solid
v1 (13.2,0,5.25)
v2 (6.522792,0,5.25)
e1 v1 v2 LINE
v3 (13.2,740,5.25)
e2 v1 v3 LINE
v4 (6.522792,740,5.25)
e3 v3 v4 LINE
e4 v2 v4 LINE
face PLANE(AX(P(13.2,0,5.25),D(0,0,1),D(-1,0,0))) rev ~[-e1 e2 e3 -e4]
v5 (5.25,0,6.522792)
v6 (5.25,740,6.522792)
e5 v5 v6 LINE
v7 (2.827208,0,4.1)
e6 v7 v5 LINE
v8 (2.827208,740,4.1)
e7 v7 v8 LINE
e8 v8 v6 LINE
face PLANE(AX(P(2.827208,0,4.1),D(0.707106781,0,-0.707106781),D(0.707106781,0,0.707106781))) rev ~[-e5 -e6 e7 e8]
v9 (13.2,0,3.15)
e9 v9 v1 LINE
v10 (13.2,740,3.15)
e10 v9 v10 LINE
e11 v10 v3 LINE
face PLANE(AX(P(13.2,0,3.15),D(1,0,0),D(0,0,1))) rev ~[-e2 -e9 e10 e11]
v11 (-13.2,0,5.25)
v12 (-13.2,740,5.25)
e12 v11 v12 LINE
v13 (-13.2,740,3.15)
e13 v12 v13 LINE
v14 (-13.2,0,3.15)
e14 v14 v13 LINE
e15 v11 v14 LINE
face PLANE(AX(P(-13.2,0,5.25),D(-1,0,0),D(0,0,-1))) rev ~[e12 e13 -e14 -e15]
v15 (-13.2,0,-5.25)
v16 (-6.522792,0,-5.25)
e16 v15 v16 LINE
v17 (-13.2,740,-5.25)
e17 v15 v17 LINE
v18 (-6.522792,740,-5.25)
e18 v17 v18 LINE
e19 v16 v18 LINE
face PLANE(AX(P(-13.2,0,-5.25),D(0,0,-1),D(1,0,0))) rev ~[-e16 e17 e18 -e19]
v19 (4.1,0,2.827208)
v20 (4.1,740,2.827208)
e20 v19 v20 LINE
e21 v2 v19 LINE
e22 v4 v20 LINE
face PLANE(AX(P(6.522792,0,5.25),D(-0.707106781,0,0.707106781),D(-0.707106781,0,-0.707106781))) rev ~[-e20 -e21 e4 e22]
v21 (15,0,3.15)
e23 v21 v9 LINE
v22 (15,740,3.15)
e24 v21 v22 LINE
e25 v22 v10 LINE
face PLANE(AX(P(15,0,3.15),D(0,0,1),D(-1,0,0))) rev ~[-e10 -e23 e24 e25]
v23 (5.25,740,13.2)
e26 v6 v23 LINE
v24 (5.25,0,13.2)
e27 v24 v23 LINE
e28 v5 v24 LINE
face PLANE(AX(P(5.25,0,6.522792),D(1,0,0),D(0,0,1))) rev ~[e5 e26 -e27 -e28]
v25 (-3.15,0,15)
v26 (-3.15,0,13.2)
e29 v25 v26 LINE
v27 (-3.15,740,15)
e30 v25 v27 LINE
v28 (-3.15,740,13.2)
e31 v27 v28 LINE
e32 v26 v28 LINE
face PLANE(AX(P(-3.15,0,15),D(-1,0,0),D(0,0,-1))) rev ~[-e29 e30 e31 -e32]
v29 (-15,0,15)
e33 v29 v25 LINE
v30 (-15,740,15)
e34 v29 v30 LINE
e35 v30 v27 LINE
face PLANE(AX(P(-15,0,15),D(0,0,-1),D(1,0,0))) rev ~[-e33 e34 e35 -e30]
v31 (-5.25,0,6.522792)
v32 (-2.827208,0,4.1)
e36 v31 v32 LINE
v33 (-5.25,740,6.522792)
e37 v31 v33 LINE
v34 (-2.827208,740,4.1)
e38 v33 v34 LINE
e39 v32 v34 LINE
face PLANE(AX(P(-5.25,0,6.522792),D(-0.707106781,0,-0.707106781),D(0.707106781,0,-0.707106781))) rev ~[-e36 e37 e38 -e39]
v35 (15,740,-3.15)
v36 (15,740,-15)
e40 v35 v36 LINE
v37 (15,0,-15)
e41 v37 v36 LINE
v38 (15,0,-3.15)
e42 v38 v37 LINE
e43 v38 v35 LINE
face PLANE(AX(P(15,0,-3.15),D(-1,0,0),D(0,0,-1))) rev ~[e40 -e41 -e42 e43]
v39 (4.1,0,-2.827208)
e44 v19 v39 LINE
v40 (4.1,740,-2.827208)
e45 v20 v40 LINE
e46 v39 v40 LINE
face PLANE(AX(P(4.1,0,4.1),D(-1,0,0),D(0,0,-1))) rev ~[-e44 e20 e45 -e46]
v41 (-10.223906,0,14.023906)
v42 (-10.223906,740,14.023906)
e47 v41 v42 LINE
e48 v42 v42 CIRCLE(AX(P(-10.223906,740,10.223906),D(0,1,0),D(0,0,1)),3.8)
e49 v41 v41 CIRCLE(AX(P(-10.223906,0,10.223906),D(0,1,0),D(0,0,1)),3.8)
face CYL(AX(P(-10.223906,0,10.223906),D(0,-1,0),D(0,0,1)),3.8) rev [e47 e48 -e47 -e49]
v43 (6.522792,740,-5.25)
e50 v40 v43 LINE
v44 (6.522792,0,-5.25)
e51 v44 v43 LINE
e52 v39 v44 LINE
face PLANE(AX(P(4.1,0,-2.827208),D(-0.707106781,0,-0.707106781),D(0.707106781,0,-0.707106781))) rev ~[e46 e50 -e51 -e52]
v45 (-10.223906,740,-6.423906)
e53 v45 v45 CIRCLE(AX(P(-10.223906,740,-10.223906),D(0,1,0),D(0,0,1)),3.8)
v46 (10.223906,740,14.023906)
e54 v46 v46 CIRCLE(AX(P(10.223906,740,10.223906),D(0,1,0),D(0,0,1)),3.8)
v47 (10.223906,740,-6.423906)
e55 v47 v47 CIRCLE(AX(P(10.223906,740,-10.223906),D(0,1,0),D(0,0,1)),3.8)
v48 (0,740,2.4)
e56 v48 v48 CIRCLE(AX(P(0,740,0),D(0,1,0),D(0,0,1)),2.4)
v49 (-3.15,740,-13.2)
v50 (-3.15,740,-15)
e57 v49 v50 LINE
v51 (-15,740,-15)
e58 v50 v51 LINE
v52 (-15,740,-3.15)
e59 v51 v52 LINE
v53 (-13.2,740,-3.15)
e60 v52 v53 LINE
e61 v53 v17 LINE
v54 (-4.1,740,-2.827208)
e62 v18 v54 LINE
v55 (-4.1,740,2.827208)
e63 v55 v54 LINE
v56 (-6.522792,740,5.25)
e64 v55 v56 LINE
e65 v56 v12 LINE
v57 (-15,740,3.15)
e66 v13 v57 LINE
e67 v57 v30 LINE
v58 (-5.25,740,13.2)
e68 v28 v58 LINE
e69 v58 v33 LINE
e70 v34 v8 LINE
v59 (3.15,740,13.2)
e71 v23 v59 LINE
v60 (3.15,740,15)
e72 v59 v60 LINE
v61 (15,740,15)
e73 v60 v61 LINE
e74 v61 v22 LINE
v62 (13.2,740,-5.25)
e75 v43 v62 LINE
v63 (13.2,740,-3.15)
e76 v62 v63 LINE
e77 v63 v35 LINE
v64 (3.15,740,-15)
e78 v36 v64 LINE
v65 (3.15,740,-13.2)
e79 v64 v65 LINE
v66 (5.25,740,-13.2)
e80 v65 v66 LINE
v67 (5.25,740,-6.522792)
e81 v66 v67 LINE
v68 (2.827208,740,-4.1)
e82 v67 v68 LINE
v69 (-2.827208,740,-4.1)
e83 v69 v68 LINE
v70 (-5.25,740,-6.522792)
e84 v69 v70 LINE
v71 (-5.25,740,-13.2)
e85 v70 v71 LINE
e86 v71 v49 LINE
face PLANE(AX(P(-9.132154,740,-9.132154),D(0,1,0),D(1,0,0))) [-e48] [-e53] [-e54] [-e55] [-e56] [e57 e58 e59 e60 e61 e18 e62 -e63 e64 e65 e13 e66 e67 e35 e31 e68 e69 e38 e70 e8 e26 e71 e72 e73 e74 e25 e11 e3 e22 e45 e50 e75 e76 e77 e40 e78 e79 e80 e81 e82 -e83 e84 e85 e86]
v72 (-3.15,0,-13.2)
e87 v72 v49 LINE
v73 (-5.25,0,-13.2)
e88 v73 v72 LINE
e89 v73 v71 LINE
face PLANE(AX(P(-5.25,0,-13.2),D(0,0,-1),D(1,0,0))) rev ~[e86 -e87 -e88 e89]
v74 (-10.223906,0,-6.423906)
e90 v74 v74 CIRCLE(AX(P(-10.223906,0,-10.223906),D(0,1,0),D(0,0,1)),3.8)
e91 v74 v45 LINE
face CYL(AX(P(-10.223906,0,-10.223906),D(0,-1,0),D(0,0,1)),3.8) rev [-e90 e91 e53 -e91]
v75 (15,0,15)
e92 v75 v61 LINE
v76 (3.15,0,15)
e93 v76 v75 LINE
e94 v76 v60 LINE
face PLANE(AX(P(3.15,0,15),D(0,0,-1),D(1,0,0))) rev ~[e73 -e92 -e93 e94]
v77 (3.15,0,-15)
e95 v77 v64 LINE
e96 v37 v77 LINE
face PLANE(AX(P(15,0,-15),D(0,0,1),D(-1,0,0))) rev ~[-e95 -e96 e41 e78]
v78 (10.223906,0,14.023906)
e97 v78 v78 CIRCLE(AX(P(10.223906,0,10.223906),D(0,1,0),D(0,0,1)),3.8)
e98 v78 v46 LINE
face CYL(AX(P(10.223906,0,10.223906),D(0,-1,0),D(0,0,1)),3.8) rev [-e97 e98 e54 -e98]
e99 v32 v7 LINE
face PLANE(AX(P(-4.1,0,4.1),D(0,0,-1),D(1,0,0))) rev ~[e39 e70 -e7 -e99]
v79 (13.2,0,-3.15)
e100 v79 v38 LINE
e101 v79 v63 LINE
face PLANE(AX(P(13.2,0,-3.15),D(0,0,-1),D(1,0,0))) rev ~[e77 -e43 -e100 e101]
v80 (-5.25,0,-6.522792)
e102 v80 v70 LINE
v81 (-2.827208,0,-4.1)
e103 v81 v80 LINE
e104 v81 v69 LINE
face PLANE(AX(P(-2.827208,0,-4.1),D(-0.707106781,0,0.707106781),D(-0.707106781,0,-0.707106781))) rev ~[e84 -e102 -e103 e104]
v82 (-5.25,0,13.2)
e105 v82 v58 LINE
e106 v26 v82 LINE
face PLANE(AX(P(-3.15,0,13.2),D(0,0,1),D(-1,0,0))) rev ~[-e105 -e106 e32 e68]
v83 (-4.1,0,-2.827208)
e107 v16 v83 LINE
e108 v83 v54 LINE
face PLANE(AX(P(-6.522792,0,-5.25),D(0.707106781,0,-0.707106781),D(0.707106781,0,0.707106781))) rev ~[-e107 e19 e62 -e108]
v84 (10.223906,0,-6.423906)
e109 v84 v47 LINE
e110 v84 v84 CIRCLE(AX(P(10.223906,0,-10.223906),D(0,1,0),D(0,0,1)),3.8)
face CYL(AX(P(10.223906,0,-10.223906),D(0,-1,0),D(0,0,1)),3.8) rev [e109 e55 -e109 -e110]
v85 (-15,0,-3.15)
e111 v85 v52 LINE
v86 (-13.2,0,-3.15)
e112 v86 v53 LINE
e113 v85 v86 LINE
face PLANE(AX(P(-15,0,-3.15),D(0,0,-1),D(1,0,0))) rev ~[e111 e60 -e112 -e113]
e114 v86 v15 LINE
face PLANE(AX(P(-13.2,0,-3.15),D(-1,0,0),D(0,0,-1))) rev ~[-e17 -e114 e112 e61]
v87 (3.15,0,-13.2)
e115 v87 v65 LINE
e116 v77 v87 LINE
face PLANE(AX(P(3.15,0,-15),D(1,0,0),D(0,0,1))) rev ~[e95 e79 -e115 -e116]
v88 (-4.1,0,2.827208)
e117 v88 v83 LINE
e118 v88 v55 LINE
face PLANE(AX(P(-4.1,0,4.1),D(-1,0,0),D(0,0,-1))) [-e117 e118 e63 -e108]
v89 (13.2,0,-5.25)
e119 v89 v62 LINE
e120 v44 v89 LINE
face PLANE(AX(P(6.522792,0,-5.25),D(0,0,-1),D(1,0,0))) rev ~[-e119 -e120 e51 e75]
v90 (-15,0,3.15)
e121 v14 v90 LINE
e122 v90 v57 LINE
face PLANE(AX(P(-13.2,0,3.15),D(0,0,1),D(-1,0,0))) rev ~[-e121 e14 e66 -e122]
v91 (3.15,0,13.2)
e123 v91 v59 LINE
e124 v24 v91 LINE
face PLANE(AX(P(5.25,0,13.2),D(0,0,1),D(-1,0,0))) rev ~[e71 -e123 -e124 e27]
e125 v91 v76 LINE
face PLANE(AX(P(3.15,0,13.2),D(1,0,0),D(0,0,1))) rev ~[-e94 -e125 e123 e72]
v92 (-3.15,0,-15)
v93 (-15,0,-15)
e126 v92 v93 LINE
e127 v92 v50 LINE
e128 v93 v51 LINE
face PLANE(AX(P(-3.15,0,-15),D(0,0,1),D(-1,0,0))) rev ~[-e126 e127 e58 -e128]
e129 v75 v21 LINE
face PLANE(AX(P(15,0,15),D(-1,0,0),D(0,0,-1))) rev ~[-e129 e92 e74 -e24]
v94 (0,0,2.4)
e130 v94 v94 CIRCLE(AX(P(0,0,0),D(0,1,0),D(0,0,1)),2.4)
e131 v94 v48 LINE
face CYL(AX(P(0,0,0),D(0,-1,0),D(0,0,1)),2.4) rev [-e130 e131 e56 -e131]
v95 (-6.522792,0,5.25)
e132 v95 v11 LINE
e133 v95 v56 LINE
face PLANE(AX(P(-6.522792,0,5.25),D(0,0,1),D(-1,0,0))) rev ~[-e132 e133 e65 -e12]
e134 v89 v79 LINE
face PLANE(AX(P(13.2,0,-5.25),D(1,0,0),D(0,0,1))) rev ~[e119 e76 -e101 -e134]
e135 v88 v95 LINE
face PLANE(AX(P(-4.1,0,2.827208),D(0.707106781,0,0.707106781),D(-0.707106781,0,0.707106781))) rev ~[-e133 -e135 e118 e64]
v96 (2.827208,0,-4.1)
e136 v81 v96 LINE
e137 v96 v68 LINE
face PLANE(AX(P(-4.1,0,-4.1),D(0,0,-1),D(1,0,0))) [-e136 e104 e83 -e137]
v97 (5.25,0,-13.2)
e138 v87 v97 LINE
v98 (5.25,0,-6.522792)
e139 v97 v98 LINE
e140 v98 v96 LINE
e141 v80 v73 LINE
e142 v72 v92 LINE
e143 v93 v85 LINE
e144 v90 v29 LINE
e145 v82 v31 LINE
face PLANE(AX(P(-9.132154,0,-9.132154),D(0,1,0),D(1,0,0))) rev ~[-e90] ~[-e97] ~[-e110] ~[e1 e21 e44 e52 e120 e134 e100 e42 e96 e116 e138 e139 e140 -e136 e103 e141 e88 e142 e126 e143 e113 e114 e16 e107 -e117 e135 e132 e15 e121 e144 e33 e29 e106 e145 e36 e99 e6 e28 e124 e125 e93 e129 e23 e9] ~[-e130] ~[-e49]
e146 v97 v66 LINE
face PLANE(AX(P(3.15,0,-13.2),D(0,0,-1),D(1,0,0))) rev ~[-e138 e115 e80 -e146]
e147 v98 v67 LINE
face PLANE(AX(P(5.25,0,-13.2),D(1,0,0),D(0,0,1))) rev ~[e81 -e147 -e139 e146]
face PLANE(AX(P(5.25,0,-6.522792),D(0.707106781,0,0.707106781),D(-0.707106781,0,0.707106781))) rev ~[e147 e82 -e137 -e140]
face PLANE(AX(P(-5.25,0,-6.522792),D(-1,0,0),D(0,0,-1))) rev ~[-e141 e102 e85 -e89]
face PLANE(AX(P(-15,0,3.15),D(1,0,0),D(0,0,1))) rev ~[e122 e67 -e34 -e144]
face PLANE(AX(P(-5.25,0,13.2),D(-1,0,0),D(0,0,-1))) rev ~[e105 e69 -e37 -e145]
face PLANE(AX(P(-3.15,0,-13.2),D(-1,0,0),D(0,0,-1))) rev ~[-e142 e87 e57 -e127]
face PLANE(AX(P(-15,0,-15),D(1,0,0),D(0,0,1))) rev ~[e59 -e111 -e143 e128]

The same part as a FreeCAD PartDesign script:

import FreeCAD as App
import Part
import Sketcher

V = App.Vector
Q = App.Units.Quantity


def add_polygon(sketch, points):
    """Adds a closed chain of lines whose ends are joined by coincident constraints."""
    first, n = sketch.GeometryCount, len(points)
    for a, b in zip(points, points[1:] + points[:1]):
        sketch.addGeometry(Part.LineSegment(App.Vector(*a, 0), App.Vector(*b, 0)), False)
    for i in range(n):
        sketch.addConstraint(Sketcher.Constraint("Coincident", first + i, 2, first + (i + 1) % n, 1))

doc = App.newDocument("Part")
body = doc.addObject("PartDesign::Body", "Body")

sketch1 = doc.addObject("Sketcher::SketchObject", "Sketch")
body.addObject(sketch1)
sketch1.AttachmentSupport = (doc.XZ_Plane, [""])
sketch1.MapMode = "FlatFace"
add_polygon(sketch1, [(-13.2, 3.15), (-15, 3.15), (-15, 15), (-3.15, 15), (-3.15, 13.2), (-5.25, 13.2), (-5.25, 6.522792), (-2.827208, 4.1), (2.827208, 4.1), (5.25, 6.522792), (5.25, 13.2), (3.15, 13.2), (3.15, 15), (15, 15), (15, 3.15), (13.2, 3.15), (13.2, 5.25), (6.522792, 5.25), (4.1, 2.827208), (4.1, -2.827208), (6.522792, -5.25), (13.2, -5.25), (13.2, -3.15), (15, -3.15), (15, -15), (3.15, -15), (3.15, -13.2), (5.25, -13.2), (5.25, -6.522792), (2.827208, -4.1), (-2.827208, -4.1), (-5.25, -6.522792), (-5.25, -13.2), (-3.15, -13.2), (-3.15, -15), (-15, -15), (-15, -3.15), (-13.2, -3.15), (-13.2, -5.25), (-6.522792, -5.25), (-4.1, -2.827208), (-4.1, 2.827208), (-6.522792, 5.25), (-13.2, 5.25)])
sketch1.addGeometry(Part.Circle(V(-10.223906, 10.223906, 0), V(0, 0, 1), 3.8), False)
sketch1.addGeometry(Part.Circle(V(0, 0, 0), V(0, 0, 1), 2.4), False)
sketch1.addGeometry(Part.Circle(V(-10.223906, -10.223906, 0), V(0, 0, 1), 3.8), False)
sketch1.addGeometry(Part.Circle(V(10.223906, -10.223906, 0), V(0, 0, 1), 3.8), False)
sketch1.addGeometry(Part.Circle(V(10.223906, 10.223906, 0), V(0, 0, 1), 3.8), False)
sketch1.addConstraint(Sketcher.Constraint("Horizontal", 0))
sketch1.addConstraint(Sketcher.Constraint("Vertical", 1))
sketch1.addConstraint(Sketcher.Constraint("Horizontal", 2))
sketch1.addConstraint(Sketcher.Constraint("Vertical", 3))
sketch1.addConstraint(Sketcher.Constraint("Horizontal", 4))
sketch1.addConstraint(Sketcher.Constraint("Vertical", 5))
sketch1.addConstraint(Sketcher.Constraint("Horizontal", 7))
sketch1.addConstraint(Sketcher.Constraint("Vertical", 9))
sketch1.addConstraint(Sketcher.Constraint("Horizontal", 10))
sketch1.addConstraint(Sketcher.Constraint("Vertical", 11))
sketch1.addConstraint(Sketcher.Constraint("Horizontal", 12))
sketch1.addConstraint(Sketcher.Constraint("Vertical", 13))
sketch1.addConstraint(Sketcher.Constraint("Horizontal", 14))
sketch1.addConstraint(Sketcher.Constraint("Vertical", 15))
sketch1.addConstraint(Sketcher.Constraint("Horizontal", 16))
sketch1.addConstraint(Sketcher.Constraint("Vertical", 18))
sketch1.addConstraint(Sketcher.Constraint("Horizontal", 20))
sketch1.addConstraint(Sketcher.Constraint("Vertical", 21))
sketch1.addConstraint(Sketcher.Constraint("Horizontal", 22))
sketch1.addConstraint(Sketcher.Constraint("Vertical", 23))
sketch1.addConstraint(Sketcher.Constraint("Horizontal", 24))
sketch1.addConstraint(Sketcher.Constraint("Vertical", 25))
sketch1.addConstraint(Sketcher.Constraint("Horizontal", 26))
sketch1.addConstraint(Sketcher.Constraint("Vertical", 27))
sketch1.addConstraint(Sketcher.Constraint("Horizontal", 29))
sketch1.addConstraint(Sketcher.Constraint("Vertical", 31))
sketch1.addConstraint(Sketcher.Constraint("Horizontal", 32))
sketch1.addConstraint(Sketcher.Constraint("Vertical", 33))
sketch1.addConstraint(Sketcher.Constraint("Horizontal", 34))
sketch1.addConstraint(Sketcher.Constraint("Vertical", 35))
sketch1.addConstraint(Sketcher.Constraint("Horizontal", 36))
sketch1.addConstraint(Sketcher.Constraint("Vertical", 37))
sketch1.addConstraint(Sketcher.Constraint("Horizontal", 38))
sketch1.addConstraint(Sketcher.Constraint("Vertical", 40))
sketch1.addConstraint(Sketcher.Constraint("Horizontal", 42))
sketch1.addConstraint(Sketcher.Constraint("Vertical", 43))
sketch1.addConstraint(Sketcher.Constraint("Coincident", 45, 3, -1, 1))
sketch1.addConstraint(Sketcher.Constraint("Equal", 44, 46))
sketch1.addConstraint(Sketcher.Constraint("Equal", 46, 47))
sketch1.addConstraint(Sketcher.Constraint("Equal", 47, 48))
sketch1.addConstraint(Sketcher.Constraint("Symmetric", 44, 3, 47, 3, -1, 1))
sketch1.addConstraint(Sketcher.Constraint("Symmetric", 46, 3, 48, 3, -1, 1))
sketch1.addConstraint(Sketcher.Constraint("Symmetric", 0, 2, 22, 2, -1, 1))
sketch1.addConstraint(Sketcher.Constraint("Symmetric", 2, 2, 24, 2, -1, 1))
sketch1.addConstraint(Sketcher.Constraint("Symmetric", 4, 2, 26, 2, -1, 1))
sketch1.addConstraint(Sketcher.Constraint("Symmetric", 6, 2, 28, 2, -1, 1))
sketch1.addConstraint(Sketcher.Constraint("Symmetric", 8, 2, 30, 2, -1, 1))
sketch1.addConstraint(Sketcher.Constraint("Symmetric", 10, 2, 32, 2, -1, 1))
sketch1.addConstraint(Sketcher.Constraint("Symmetric", 12, 2, 34, 2, -1, 1))
sketch1.addConstraint(Sketcher.Constraint("Symmetric", 14, 2, 36, 2, -1, 1))
sketch1.addConstraint(Sketcher.Constraint("Symmetric", 16, 2, 38, 2, -1, 1))
sketch1.addConstraint(Sketcher.Constraint("Symmetric", 17, 2, 39, 2, -1, 1))
sketch1.addConstraint(Sketcher.Constraint("Symmetric", 19, 2, 41, 2, -1, 1))
sketch1.addConstraint(Sketcher.Constraint("Symmetric", 46, 3, 47, 3, -2))
sketch1.addConstraint(Sketcher.Constraint("Symmetric", 5, 2, 8, 2, -2))
sketch1.addConstraint(Sketcher.Constraint("Symmetric", 3, 2, 10, 2, -2))
sketch1.addConstraint(Sketcher.Constraint("Symmetric", 1, 2, 12, 2, -2))
sketch1.addConstraint(Sketcher.Constraint("Symmetric", 21, 2, 36, 2, -2))
sketch1.addConstraint(Sketcher.Constraint("Symmetric", 19, 2, 38, 2, -2))
sketch1.addConstraint(Sketcher.Constraint("Perpendicular", 6, 8))
sketch1.addConstraint(Sketcher.Constraint("Parallel", 8, 17))
sketch1.addConstraint(Sketcher.Constraint("Perpendicular", 17, 19))
sketch1.addConstraint(Sketcher.Constraint("Parallel", 19, 28))
sketch1.addConstraint(Sketcher.Constraint("Perpendicular", 28, 30))
sketch1.addConstraint(Sketcher.Constraint("Perpendicular", 39, 41))
sketch1.addConstraint(Sketcher.Constraint("Horizontal", 18, 2, 39, 2))
sketch1.addConstraint(Sketcher.Constraint("Vertical", 37, 2, 42, 2))
sketch1.addConstraint(Sketcher.Constraint("Equal", 34, 1))
sketch1.addConstraint(Sketcher.Constraint("Equal", 36, 3))
sketch1.addConstraint(Sketcher.Constraint("Equal", 42, 5))
sketch1.addConstraint(Sketcher.Constraint("Equal", 32, 15))
sketch1.addConstraint(Sketcher.Constraint("Equal", 29, 18))
sketch1.addConstraint(Sketcher.Constraint("Equal", 8, 17))
sketch1.addConstraint(Sketcher.Constraint("Diameter", 44, Q("7.6 mm")))
sketch1.addConstraint(Sketcher.Constraint("Diameter", 45, Q("4.8 mm")))
sketch1.addConstraint(Sketcher.Constraint("DistanceX", 0, 2, 0, 1, Q("1.8 mm")))
sketch1.addConstraint(Sketcher.Constraint("DistanceX", 4, 2, 4, 1, Q("2.1 mm")))
sketch1.addConstraint(Sketcher.Constraint("DistanceX", 0, 2, -1, 1, Q("15 mm")))
sketch1.addConstraint(Sketcher.Constraint("DistanceX", 2, 1, 2, 2, Q("11.85 mm")))
sketch1.addConstraint(Sketcher.Constraint("DistanceY", -1, 1, 6, 2, Q("4.1 mm")))
sketch1.addConstraint(Sketcher.Constraint("DistanceX", 44, 3, 6, 2, Q("7.396698 mm")))
sketch1.addConstraint(Sketcher.Constraint("DistanceX", 7, 1, 7, 2, Q("5.654416 mm")))
sketch1.addConstraint(Sketcher.Constraint("DistanceY", 46, 3, 44, 3, Q("20.447812 mm")))
pad1 = doc.addObject("PartDesign::Pad", "Pad")
body.addObject(pad1)
pad1.Profile = sketch1
pad1.Length = 740
pad1.Reversed = True

doc.recompute()
